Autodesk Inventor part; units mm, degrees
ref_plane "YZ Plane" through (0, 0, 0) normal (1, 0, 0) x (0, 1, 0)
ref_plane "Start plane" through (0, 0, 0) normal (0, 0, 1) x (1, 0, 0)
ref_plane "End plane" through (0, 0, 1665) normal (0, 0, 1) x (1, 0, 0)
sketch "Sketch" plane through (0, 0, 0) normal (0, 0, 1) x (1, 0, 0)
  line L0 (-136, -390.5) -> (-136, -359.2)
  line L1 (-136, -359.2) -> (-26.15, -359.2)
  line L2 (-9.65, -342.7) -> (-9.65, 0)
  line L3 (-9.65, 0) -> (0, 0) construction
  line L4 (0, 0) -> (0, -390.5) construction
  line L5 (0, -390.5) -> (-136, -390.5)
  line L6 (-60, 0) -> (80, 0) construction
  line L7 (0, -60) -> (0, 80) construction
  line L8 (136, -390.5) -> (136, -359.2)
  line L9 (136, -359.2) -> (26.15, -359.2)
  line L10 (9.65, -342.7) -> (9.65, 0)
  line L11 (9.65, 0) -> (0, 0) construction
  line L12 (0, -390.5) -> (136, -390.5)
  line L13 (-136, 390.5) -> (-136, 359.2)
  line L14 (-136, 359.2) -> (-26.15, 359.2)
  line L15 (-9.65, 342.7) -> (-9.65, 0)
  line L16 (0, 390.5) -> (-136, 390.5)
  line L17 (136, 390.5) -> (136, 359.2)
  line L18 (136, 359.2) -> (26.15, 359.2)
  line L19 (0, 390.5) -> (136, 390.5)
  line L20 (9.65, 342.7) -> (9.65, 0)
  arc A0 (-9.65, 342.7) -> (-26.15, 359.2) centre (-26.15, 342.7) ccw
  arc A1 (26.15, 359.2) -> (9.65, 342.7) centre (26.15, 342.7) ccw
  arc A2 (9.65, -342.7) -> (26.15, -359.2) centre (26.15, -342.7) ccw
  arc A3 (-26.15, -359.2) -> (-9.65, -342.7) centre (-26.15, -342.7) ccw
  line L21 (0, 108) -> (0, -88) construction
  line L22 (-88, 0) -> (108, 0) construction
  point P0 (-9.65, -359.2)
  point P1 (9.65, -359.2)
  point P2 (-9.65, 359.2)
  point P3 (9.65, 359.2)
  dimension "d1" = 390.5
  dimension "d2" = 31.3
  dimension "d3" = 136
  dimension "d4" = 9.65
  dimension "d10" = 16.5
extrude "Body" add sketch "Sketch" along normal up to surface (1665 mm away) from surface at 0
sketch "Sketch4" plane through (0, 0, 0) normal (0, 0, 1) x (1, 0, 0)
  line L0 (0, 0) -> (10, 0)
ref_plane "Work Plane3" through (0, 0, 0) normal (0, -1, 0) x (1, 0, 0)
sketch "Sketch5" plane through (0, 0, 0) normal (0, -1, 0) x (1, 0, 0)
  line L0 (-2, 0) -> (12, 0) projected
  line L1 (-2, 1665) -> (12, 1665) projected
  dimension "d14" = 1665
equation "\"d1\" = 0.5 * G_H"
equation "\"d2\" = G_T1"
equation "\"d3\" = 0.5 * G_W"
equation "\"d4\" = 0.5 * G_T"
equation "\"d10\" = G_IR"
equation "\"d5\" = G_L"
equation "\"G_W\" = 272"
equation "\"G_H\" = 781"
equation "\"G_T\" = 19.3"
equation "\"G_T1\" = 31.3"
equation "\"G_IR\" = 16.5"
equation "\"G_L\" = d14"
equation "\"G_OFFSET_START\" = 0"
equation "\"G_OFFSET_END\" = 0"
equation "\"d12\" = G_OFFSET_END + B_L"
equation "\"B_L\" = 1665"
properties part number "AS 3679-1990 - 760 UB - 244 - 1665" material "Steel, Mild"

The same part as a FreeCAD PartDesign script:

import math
import FreeCAD as App
import Part
import Sketcher
from FreeCAD import Vector
Q = App.Units.Quantity

doc = App.newDocument("Part")
body = doc.addObject("PartDesign::Body", "Body")

sketch1 = doc.addObject("Sketcher::SketchObject", "Sketch")
body.addObject(sketch1)
sketch1.AttachmentSupport = (doc.XY_Plane, [""])
sketch1.MapMode = "FlatFace"
sketch1.addGeometry(Part.LineSegment(Vector(-136, -359, 0), Vector(-136, -390, 0)), False)
sketch1.addGeometry(Part.LineSegment(Vector(-136, -390, 0), Vector(136, -390, 0)), False)
sketch1.addGeometry(Part.LineSegment(Vector(136, -390, 0), Vector(136, -359, 0)), False)
sketch1.addGeometry(Part.LineSegment(Vector(136, -359, 0), Vector(26, -359, 0)), False)
sketch1.addGeometry(Part.ArcOfCircle(Part.Circle(Vector(26, -343, 0), Vector(0, 0, 1), 16), math.radians(180), math.radians(270)), False)
sketch1.addGeometry(Part.LineSegment(Vector(10, -343, 0), Vector(10, 343, 0)), False)
sketch1.addGeometry(Part.ArcOfCircle(Part.Circle(Vector(26, 343, 0), Vector(0, 0, 1), 16), math.radians(90), math.radians(180)), False)
sketch1.addGeometry(Part.LineSegment(Vector(26, 359, 0), Vector(136, 359, 0)), False)
sketch1.addGeometry(Part.LineSegment(Vector(136, 359, 0), Vector(136, 390, 0)), False)
sketch1.addGeometry(Part.LineSegment(Vector(136, 390, 0), Vector(-136, 390, 0)), False)
sketch1.addGeometry(Part.LineSegment(Vector(-136, 390, 0), Vector(-136, 359, 0)), False)
sketch1.addGeometry(Part.LineSegment(Vector(-136, 359, 0), Vector(-26, 359, 0)), False)
sketch1.addGeometry(Part.ArcOfCircle(Part.Circle(Vector(-26, 343, 0), Vector(0, 0, 1), 16), math.radians(0), math.radians(90)), False)
sketch1.addGeometry(Part.LineSegment(Vector(-10, 343, 0), Vector(-10, -343, 0)), False)
sketch1.addGeometry(Part.ArcOfCircle(Part.Circle(Vector(-26, -343, 0), Vector(0, 0, 1), 16), math.radians(-90), math.radians(0)), False)
sketch1.addGeometry(Part.LineSegment(Vector(-26, -359, 0), Vector(-136, -359, 0)), False)
sketch1.addConstraint(Sketcher.Constraint("Coincident", 0, 2, 1, 1))
sketch1.addConstraint(Sketcher.Constraint("Coincident", 1, 2, 2, 1))
sketch1.addConstraint(Sketcher.Constraint("Coincident", 2, 2, 3, 1))
sketch1.addConstraint(Sketcher.Constraint("Tangent", 3, 2, 4, 2))
sketch1.addConstraint(Sketcher.Constraint("Tangent", 4, 1, 5, 1))
sketch1.addConstraint(Sketcher.Constraint("Tangent", 5, 2, 6, 2))
sketch1.addConstraint(Sketcher.Constraint("Tangent", 6, 1, 7, 1))
sketch1.addConstraint(Sketcher.Constraint("Coincident", 7, 2, 8, 1))
sketch1.addConstraint(Sketcher.Constraint("Coincident", 8, 2, 9, 1))
sketch1.addConstraint(Sketcher.Constraint("Coincident", 9, 2, 10, 1))
sketch1.addConstraint(Sketcher.Constraint("Coincident", 10, 2, 11, 1))
sketch1.addConstraint(Sketcher.Constraint("Tangent", 11, 2, 12, 2))
sketch1.addConstraint(Sketcher.Constraint("Tangent", 12, 1, 13, 1))
sketch1.addConstraint(Sketcher.Constraint("Tangent", 13, 2, 14, 2))
sketch1.addConstraint(Sketcher.Constraint("Tangent", 14, 1, 15, 1))
sketch1.addConstraint(Sketcher.Constraint("Coincident", 15, 2, 0, 1))
sketch1.addConstraint(Sketcher.Constraint("Vertical", 0))
sketch1.addConstraint(Sketcher.Constraint("Horizontal", 1))
sketch1.addConstraint(Sketcher.Constraint("Vertical", 2))
sketch1.addConstraint(Sketcher.Constraint("Horizontal", 3))
sketch1.addConstraint(Sketcher.Constraint("Vertical", 5))
sketch1.addConstraint(Sketcher.Constraint("Horizontal", 7))
sketch1.addConstraint(Sketcher.Constraint("Vertical", 8))
sketch1.addConstraint(Sketcher.Constraint("Horizontal", 9))
sketch1.addConstraint(Sketcher.Constraint("Vertical", 10))
sketch1.addConstraint(Sketcher.Constraint("Horizontal", 11))
sketch1.addConstraint(Sketcher.Constraint("Vertical", 13))
sketch1.addConstraint(Sketcher.Constraint("Horizontal", 15))
sketch1.addConstraint(Sketcher.Constraint("Equal", 4, 6))
sketch1.addConstraint(Sketcher.Constraint("Equal", 6, 12))
sketch1.addConstraint(Sketcher.Constraint("Equal", 12, 14))
sketch1.addConstraint(Sketcher.Constraint("Symmetric", 4, 3, 12, 3, -1, 1))
sketch1.addConstraint(Sketcher.Constraint("Symmetric", 0, 2, 8, 2, -1, 1))
sketch1.addConstraint(Sketcher.Constraint("Symmetric", 7, 2, 10, 2, -2))
sketch1.addConstraint(Sketcher.Constraint("Symmetric", 2, 2, 15, 2, -2))
sketch1.addConstraint(Sketcher.Constraint("Radius", 4, Q("16.5 mm")))
sketch1.addConstraint(Sketcher.Constraint("DistanceY", 0, 2, 0, 1, Q("31.3 mm")))
sketch1.addConstraint(Sketcher.Constraint("DistanceX", 0, 2, -1, 1, Q("136 mm")))
sketch1.addConstraint(Sketcher.Constraint("DistanceY", 0, 2, -1, 1, Q("390.5 mm")))
sketch1.addConstraint(Sketcher.Constraint("DistanceX", -1, 1, 4, 1, Q("9.65 mm")))
pad1 = doc.addObject("PartDesign::Pad", "Pad")
body.addObject(pad1)
pad1.Profile = sketch1
pad1.Length = 1665

doc.recompute()
